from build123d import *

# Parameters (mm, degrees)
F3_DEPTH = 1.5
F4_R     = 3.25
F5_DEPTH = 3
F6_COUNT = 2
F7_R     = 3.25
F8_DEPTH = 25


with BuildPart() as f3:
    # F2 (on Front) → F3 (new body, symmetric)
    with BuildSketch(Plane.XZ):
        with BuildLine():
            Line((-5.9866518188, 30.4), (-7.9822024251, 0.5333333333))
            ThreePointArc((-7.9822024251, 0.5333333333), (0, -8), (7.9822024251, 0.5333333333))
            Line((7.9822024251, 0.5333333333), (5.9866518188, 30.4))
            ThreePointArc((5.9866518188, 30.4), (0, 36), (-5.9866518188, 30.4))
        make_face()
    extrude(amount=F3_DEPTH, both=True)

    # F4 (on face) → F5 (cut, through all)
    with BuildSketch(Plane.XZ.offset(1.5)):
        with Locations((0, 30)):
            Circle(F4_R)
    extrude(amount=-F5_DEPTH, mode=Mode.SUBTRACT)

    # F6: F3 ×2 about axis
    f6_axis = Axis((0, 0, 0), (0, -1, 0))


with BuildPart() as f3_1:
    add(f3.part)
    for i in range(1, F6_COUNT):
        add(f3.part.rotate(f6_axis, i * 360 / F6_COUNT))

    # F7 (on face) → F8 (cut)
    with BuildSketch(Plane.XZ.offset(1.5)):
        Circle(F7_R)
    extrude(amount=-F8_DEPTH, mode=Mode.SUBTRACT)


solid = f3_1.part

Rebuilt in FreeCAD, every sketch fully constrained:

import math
import FreeCAD as App
import Part
import Sketcher

V = App.Vector
Q = App.Units.Quantity

doc = App.newDocument("Part")
params = doc.addObject("Spreadsheet::Sheet", "Params")
for row, (alias, value) in enumerate([
    ("sketch1_radius", "8 mm"),
    ("sketch1_radius2", "6 mm"),
    ("pad1_length", "3 mm"),
    ("sketch2_diameter", "6.5 mm"),
    ("sketch3_diameter", "6.5 mm"),
    ("pocket2_length", "25 mm"),
], start=1):
    params.set(f"A{row}", alias)
    params.set(f"B{row}", "=" + value)
    params.setAlias(f"B{row}", alias)

body = doc.addObject("PartDesign::Body", "Body")

# Sketch on XZ plane
sketch1 = body.newObject("Sketcher::SketchObject", "Sketch")
sketch1.AttachmentSupport = (doc.getObject("XZ_Plane"), [""])
sketch1.MapMode = "FlatFace"
sketch1.addGeometry([
    Part.LineSegment(V(-6, 30, 0), V(-8, 1, 0)),
    Part.ArcOfCircle(Part.Circle(V(0, 0, 0), V(0, 0, 1), 8), math.radians(176), math.radians(364)),
    Part.LineSegment(V(8, 1, 0), V(6, 30, 0)),
    Part.ArcOfCircle(Part.Circle(V(0, 30, 0), V(0, 0, 1), 6), math.radians(4), math.radians(176)),
], False)
sketch1.addConstraint([
    Sketcher.Constraint("Tangent", 0, 2, 1, 1),
    Sketcher.Constraint("Tangent", 1, 2, 2, 1),
    Sketcher.Constraint("Tangent", 2, 2, 3, 1),
    Sketcher.Constraint("Tangent", 3, 2, 0, 1),
    Sketcher.Constraint("Coincident", 1, 3, -1, 1),
    Sketcher.Constraint("PointOnObject", 3, 3, -2),
    Sketcher.Constraint("Radius", 1, Q("8 mm")),
    Sketcher.Constraint("Radius", 3, Q("6 mm")),
    Sketcher.Constraint("DistanceY", -1, 1, 3, 3, Q("30 mm")),
])
sketch1.setExpression("Constraints[6]", "Params.sketch1_radius")
sketch1.setExpression("Constraints[7]", "Params.sketch1_radius2")
pad1 = body.newObject("PartDesign::Pad", "Pad")
pad1.Profile = sketch1
pad1.setExpression("Length", "Params.pad1_length")
pad1.Midplane = True

# Sketch on XZ plane
sketch2 = body.newObject("Sketcher::SketchObject", "Sketch001")
sketch2.AttachmentSupport = (doc.getObject("XZ_Plane"), [""])
sketch2.MapMode = "FlatFace"
sketch2.AttachmentOffset = App.Placement(V(0, 0, 1.5), App.Rotation())
sketch2.addGeometry(Part.Circle(V(0, 30, 0), V(0, 0, 1), 3.2), False)
sketch2.addConstraint([
    Sketcher.Constraint("PointOnObject", 0, 3, -2),
    Sketcher.Constraint("Diameter", 0, Q("6.5 mm")),
    Sketcher.Constraint("DistanceY", -1, 1, 0, 3, Q("30 mm")),
])
sketch2.setExpression("Constraints[1]", "Params.sketch2_diameter")
pocket1 = body.newObject("PartDesign::Pocket", "Pocket")
pocket1.Profile = sketch2
pocket1.Type = "ThroughAll"
body2 = doc.addObject("PartDesign::Body", "Body001")
doc.recompute()

body2.BaseFeature = body
doc.recompute()

body.Placement = App.Placement(V(0, 0, 0), App.Rotation(V(0, -1, 0), 180))
boolean = body2.newObject("PartDesign::Boolean", "Boolean")
boolean.Type = "Fuse"
boolean.addObjects([body])

# Sketch on XZ plane
sketch3 = body2.newObject("Sketcher::SketchObject", "Sketch002")
sketch3.AttachmentSupport = (doc.getObject("XZ_Plane001"), [""])
sketch3.MapMode = "FlatFace"
sketch3.AttachmentOffset = App.Placement(V(0, 0, 1.5), App.Rotation())
sketch3.addGeometry(Part.Circle(V(0, 0, 0), V(0, 0, 1), 3.2), False)
sketch3.addConstraint([
    Sketcher.Constraint("Coincident", 0, 3, -1, 1),
    Sketcher.Constraint("Diameter", 0, Q("6.5 mm")),
])
sketch3.setExpression("Constraints[1]", "Params.sketch3_diameter")
pocket2 = body2.newObject("PartDesign::Pocket", "Pocket001")
pocket2.Profile = sketch3
pocket2.setExpression("Length", "Params.pocket2_length")

doc.recompute()
